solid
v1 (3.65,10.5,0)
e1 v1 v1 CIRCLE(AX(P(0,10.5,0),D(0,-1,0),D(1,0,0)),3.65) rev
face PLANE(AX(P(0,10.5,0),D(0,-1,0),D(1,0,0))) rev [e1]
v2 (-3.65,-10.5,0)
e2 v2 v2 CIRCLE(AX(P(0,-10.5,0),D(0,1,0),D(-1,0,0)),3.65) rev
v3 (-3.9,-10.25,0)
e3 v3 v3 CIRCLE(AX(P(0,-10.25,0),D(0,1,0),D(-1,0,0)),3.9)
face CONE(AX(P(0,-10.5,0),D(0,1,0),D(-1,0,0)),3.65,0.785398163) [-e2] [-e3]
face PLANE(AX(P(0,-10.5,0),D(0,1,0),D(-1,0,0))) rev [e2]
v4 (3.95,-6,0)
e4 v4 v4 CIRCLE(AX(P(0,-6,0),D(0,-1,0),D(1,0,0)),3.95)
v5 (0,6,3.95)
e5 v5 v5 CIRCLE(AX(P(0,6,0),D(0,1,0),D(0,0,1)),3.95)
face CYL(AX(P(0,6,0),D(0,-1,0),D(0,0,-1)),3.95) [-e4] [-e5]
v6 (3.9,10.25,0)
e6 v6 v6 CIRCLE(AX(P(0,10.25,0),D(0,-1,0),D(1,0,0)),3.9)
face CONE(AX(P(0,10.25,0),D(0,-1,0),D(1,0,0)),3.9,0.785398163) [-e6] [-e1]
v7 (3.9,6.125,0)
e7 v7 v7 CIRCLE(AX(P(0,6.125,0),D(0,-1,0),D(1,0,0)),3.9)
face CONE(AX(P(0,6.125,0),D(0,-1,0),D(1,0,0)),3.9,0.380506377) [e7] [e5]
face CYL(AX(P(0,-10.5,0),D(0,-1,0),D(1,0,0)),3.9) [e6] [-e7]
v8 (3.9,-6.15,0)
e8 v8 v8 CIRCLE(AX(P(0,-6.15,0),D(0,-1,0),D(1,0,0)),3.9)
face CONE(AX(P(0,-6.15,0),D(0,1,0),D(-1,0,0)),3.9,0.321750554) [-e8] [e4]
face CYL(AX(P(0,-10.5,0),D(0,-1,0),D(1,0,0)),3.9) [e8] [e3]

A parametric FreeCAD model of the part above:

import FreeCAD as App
import Part
import Sketcher
Q = App.Units.Quantity


def edges_at(feature, points):
    """Names of the edges that pass closest to the given points."""
    edges = feature.Shape.Edges
    near = lambda p: min(range(len(edges)), key=lambda i: edges[i].distToShape(Part.Vertex(*p))[0])
    return sorted({f"Edge{near(p) + 1}" for p in points})

doc = App.newDocument("Part")
body = doc.addObject("PartDesign::Body", "Body")

# Sketch on XZ plane
sketch1 = doc.addObject("Sketcher::SketchObject", "Sketch")
body.addObject(sketch1)
sketch1.AttachmentSupport = (doc.XZ_Plane, [""])
sketch1.MapMode = "FlatFace"
sketch1.addGeometry(Part.Circle(App.Vector(0, 0, 0), App.Vector(0, 0, 1), 3.95), False)
sketch1.addConstraint(Sketcher.Constraint("Coincident", 0, 3, -1, 1))
sketch1.addConstraint(Sketcher.Constraint("Diameter", 0, Q("7.9 mm")))
pad1 = doc.addObject("PartDesign::Pad", "Pad")
body.addObject(pad1)
pad1.Profile = sketch1
pad1.Length = 12
pad1.Midplane = True

# Sketch on XY plane
sketch2 = doc.addObject("Sketcher::SketchObject", "Sketch001")
body.addObject(sketch2)
sketch2.AttachmentSupport = (doc.XY_Plane, [""])
sketch2.MapMode = "FlatFace"
sketch2.addGeometry(Part.LineSegment(App.Vector(0, -10.5, 0), App.Vector(0, -6, 0)), False)
sketch2.addGeometry(Part.LineSegment(App.Vector(0, -6, 0), App.Vector(-3.95, -6, 0)), False)
sketch2.addGeometry(Part.LineSegment(App.Vector(-3.95, -6, 0), App.Vector(-3.9, -6.15, 0)), False)
sketch2.addGeometry(Part.LineSegment(App.Vector(-3.9, -6.15, 0), App.Vector(-3.9, -10.5, 0)), False)
sketch2.addGeometry(Part.LineSegment(App.Vector(-3.9, -10.5, 0), App.Vector(0, -10.5, 0)), False)
sketch2.addGeometry(Part.LineSegment(App.Vector(0, 10.5, 0), App.Vector(0, 6, 0)), False)
sketch2.addGeometry(Part.LineSegment(App.Vector(0, 6, 0), App.Vector(3.95, 6, 0)), False)
sketch2.addGeometry(Part.LineSegment(App.Vector(3.95, 6, 0), App.Vector(3.9, 6.125, 0)), False)
sketch2.addGeometry(Part.LineSegment(App.Vector(3.9, 6.125, 0), App.Vector(3.9, 10.5, 0)), False)
sketch2.addGeometry(Part.LineSegment(App.Vector(3.9, 10.5, 0), App.Vector(0, 10.5, 0)), False)
sketch2.addConstraint(Sketcher.Constraint("Coincident", 0, 2, 1, 1))
sketch2.addConstraint(Sketcher.Constraint("Coincident", 1, 2, 2, 1))
sketch2.addConstraint(Sketcher.Constraint("Coincident", 2, 2, 3, 1))
sketch2.addConstraint(Sketcher.Constraint("Coincident", 3, 2, 4, 1))
sketch2.addConstraint(Sketcher.Constraint("Coincident", 4, 2, 0, 1))
sketch2.addConstraint(Sketcher.Constraint("Coincident", 5, 2, 6, 1))
sketch2.addConstraint(Sketcher.Constraint("Coincident", 6, 2, 7, 1))
sketch2.addConstraint(Sketcher.Constraint("Coincident", 7, 2, 8, 1))
sketch2.addConstraint(Sketcher.Constraint("Coincident", 8, 2, 9, 1))
sketch2.addConstraint(Sketcher.Constraint("Coincident", 9, 2, 5, 1))
sketch2.addConstraint(Sketcher.Constraint("Vertical", 0))
sketch2.addConstraint(Sketcher.Constraint("Horizontal", 1))
sketch2.addConstraint(Sketcher.Constraint("Vertical", 3))
sketch2.addConstraint(Sketcher.Constraint("Horizontal", 4))
sketch2.addConstraint(Sketcher.Constraint("Vertical", 5))
sketch2.addConstraint(Sketcher.Constraint("Horizontal", 6))
sketch2.addConstraint(Sketcher.Constraint("Vertical", 8))
sketch2.addConstraint(Sketcher.Constraint("Horizontal", 9))
sketch2.addConstraint(Sketcher.Constraint("Symmetric", 0, 2, 5, 2, -1, 1))
sketch2.addConstraint(Sketcher.Constraint("Symmetric", 3, 2, 8, 2, -1, 1))
sketch2.addConstraint(Sketcher.Constraint("PointOnObject", 0, 2, -2))
sketch2.addConstraint(Sketcher.Constraint("Equal", 1, 6))
sketch2.addConstraint(Sketcher.Constraint("DistanceX", 4, 1, 4, 2, Q("3.9 mm")))
sketch2.addConstraint(Sketcher.Constraint("DistanceY", 0, 1, 0, 2, Q("4.5 mm")))
sketch2.addConstraint(Sketcher.Constraint("DistanceY", 0, 2, -1, 1, Q("6 mm")))
sketch2.addConstraint(Sketcher.Constraint("DistanceX", 1, 2, 1, 1, Q("3.95 mm")))
sketch2.addConstraint(Sketcher.Constraint("DistanceY", 3, 2, 3, 1, Q("4.35 mm")))
sketch2.addConstraint(Sketcher.Constraint("DistanceY", 8, 1, 8, 2, Q("4.375 mm")))
revolution = doc.addObject("PartDesign::Revolution", "Revolution")
body.addObject(revolution)
revolution.Profile = sketch2
revolution.ReferenceAxis = (sketch2, ["V_Axis"])
revolution.Angle = 360
doc.recompute()

chamfer = doc.addObject("PartDesign::Chamfer", "Chamfer")
body.addObject(chamfer)
chamfer.Base = (revolution, edges_at(revolution, [(-3.9, -10.5, 0), (3.9, 10.5, 0)]))
chamfer.Size = 0.25

doc.recompute()
